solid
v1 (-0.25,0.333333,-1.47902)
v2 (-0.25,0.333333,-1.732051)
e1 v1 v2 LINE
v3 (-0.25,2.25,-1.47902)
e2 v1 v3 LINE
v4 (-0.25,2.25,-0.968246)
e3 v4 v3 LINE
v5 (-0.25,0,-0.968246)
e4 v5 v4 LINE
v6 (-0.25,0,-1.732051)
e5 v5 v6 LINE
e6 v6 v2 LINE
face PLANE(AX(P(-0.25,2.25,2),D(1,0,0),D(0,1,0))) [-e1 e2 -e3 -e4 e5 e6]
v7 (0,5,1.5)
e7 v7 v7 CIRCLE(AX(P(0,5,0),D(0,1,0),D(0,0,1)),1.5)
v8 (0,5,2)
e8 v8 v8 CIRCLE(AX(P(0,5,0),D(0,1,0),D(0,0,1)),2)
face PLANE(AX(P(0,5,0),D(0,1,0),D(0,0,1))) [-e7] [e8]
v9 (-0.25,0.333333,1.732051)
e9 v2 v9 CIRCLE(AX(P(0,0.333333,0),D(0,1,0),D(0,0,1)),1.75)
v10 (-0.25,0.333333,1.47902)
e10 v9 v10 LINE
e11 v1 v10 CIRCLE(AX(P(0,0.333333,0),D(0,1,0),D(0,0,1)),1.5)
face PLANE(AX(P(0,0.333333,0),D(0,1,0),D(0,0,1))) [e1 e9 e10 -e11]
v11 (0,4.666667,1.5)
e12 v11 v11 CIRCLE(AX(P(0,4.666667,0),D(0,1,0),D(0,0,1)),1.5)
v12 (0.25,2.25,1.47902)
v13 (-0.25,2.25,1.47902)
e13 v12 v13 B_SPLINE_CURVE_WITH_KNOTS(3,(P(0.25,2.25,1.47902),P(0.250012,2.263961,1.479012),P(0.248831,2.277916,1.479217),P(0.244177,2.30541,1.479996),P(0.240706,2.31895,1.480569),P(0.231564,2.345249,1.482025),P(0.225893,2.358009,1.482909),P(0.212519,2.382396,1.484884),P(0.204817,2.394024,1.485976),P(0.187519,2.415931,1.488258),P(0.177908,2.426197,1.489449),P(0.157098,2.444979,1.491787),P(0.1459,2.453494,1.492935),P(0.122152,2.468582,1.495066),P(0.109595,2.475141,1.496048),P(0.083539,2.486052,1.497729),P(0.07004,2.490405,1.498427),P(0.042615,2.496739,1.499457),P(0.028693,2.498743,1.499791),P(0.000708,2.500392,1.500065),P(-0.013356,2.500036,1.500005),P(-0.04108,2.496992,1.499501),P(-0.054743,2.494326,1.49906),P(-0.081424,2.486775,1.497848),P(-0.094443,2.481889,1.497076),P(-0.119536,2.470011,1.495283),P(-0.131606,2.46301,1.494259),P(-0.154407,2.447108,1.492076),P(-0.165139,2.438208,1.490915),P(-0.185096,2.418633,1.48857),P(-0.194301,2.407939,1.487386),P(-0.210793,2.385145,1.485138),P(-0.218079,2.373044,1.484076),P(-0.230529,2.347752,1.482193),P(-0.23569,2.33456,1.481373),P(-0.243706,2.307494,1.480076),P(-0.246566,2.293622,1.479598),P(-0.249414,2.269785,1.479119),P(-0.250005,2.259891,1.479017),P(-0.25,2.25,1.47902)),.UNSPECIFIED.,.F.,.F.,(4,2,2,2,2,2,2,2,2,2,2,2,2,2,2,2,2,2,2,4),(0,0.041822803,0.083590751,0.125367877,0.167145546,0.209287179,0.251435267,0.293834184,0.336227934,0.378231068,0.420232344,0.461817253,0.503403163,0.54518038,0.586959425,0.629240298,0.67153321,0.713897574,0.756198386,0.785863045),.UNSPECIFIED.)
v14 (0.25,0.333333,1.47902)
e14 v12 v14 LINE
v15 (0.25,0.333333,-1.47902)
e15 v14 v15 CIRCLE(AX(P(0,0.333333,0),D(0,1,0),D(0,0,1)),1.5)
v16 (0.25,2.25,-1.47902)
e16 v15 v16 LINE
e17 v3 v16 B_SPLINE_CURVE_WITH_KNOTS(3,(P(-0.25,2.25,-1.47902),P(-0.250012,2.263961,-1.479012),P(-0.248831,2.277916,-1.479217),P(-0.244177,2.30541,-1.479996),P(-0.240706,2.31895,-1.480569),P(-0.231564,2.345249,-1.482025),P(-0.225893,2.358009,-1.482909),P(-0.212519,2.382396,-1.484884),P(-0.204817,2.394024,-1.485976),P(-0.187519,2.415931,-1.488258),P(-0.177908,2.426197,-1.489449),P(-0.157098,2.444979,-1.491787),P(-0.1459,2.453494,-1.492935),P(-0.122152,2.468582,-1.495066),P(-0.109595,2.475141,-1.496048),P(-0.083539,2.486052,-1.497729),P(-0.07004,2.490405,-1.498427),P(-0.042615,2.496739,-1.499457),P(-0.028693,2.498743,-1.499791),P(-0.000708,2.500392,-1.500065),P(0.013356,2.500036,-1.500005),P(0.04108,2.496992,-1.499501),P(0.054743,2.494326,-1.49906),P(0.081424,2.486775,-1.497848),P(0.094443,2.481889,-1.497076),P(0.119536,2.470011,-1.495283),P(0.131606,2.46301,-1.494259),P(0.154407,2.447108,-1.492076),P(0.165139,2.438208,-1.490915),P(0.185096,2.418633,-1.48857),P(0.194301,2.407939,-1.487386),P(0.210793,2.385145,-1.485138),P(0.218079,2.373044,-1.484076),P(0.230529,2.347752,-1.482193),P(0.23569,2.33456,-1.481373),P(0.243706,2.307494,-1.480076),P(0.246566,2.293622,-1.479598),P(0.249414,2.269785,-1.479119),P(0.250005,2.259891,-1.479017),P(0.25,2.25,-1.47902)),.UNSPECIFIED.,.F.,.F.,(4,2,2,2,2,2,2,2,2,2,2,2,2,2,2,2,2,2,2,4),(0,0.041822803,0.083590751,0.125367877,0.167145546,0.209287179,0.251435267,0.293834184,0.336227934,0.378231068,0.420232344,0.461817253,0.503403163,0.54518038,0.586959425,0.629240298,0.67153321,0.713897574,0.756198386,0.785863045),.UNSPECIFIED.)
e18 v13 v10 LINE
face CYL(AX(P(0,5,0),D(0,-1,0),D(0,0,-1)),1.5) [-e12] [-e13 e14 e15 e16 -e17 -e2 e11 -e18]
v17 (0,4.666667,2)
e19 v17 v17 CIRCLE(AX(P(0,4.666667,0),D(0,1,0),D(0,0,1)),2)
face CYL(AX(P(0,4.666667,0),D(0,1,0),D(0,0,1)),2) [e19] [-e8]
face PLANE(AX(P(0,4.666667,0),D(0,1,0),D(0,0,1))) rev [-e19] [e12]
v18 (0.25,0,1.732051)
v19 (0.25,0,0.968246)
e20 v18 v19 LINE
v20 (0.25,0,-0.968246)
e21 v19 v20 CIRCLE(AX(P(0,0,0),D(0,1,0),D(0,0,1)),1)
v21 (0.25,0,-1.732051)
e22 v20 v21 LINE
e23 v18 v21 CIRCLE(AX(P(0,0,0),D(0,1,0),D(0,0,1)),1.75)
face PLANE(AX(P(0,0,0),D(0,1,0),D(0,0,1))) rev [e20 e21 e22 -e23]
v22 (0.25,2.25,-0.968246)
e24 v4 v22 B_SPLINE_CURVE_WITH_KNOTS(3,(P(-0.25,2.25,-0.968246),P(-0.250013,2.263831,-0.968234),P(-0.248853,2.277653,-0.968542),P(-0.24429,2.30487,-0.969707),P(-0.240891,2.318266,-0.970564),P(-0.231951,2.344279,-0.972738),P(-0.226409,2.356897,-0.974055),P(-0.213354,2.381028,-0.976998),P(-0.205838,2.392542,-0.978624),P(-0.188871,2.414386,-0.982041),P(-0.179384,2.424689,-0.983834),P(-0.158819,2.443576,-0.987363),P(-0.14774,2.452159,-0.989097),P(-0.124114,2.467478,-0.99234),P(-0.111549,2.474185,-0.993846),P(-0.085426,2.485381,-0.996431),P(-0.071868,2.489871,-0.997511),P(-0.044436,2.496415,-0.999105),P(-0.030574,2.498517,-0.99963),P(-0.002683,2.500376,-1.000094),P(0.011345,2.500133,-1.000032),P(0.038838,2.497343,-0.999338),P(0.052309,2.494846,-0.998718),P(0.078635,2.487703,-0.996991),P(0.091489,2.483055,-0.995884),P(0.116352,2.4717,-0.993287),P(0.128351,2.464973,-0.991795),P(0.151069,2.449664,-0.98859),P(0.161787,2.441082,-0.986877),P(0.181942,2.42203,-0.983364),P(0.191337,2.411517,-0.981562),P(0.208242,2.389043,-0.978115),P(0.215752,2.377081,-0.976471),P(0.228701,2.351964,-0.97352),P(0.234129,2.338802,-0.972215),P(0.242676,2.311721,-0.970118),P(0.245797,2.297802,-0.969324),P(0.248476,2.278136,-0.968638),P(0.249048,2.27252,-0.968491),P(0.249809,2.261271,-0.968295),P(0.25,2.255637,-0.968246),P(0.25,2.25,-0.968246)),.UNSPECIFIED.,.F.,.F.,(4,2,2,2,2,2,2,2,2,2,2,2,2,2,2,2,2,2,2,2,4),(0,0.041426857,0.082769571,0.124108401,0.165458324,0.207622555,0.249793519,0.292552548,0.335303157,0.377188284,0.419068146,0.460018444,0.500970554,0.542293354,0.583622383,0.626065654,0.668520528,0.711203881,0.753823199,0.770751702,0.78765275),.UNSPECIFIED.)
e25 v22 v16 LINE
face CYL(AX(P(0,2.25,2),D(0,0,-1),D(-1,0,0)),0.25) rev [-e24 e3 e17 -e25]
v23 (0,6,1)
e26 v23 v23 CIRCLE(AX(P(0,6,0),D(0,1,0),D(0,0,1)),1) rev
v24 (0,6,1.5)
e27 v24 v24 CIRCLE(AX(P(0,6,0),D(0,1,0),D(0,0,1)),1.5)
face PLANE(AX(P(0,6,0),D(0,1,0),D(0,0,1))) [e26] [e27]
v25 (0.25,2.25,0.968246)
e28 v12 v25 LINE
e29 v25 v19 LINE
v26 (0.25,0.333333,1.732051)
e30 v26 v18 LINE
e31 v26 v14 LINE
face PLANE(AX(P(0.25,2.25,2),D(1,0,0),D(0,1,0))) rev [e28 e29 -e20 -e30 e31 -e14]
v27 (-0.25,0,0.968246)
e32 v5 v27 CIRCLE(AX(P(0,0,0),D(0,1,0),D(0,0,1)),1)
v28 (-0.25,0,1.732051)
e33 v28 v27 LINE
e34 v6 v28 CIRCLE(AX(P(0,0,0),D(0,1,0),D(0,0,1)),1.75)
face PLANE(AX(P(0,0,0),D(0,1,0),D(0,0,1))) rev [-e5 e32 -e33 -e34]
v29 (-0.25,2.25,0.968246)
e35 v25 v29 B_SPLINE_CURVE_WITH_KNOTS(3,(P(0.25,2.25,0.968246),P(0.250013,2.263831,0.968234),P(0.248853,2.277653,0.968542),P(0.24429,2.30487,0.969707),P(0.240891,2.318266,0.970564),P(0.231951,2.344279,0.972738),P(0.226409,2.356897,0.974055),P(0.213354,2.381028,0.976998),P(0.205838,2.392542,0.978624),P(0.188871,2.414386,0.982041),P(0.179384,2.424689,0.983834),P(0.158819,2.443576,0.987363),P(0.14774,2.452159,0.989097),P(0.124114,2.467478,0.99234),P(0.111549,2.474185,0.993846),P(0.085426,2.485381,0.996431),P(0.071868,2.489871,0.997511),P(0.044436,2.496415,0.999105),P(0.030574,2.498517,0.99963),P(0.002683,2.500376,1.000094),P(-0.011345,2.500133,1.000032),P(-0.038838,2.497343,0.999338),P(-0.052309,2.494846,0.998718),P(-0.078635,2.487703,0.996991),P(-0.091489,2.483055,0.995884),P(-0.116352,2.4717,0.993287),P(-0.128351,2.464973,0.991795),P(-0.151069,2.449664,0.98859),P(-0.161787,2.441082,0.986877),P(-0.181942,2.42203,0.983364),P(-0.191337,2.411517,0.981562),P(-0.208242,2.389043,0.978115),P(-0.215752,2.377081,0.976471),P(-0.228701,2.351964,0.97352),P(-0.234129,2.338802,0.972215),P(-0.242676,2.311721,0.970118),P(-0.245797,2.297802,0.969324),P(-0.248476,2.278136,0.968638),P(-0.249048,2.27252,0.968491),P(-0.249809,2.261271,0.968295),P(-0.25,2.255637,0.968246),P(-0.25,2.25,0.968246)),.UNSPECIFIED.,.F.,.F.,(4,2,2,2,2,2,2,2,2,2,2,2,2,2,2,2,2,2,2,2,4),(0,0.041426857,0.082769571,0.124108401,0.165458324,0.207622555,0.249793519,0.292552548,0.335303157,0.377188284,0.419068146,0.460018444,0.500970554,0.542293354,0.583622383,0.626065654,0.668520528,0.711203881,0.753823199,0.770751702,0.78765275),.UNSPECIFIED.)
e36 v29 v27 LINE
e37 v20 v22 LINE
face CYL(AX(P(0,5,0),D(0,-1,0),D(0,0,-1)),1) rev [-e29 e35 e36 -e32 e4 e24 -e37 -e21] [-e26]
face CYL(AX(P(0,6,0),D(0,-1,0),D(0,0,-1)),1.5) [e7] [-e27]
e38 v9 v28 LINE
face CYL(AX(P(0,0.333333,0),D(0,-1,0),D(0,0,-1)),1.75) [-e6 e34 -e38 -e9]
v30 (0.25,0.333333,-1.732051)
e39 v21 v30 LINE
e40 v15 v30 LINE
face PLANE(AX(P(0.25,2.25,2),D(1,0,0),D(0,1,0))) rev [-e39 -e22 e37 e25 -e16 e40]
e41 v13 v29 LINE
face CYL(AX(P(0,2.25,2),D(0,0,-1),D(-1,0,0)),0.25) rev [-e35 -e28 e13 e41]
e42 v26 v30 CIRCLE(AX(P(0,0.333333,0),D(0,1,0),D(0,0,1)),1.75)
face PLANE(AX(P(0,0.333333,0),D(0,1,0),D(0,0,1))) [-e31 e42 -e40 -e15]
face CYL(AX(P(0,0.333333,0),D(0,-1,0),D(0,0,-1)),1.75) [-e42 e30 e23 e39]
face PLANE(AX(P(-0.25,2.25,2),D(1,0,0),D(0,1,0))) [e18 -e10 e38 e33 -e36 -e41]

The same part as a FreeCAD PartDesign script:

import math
import FreeCAD as App
import Part
import Sketcher
from FreeCAD import Vector

doc = App.newDocument("Part")
body = doc.addObject("PartDesign::Body", "Body")

sketch1 = body.newObject("Sketcher::SketchObject", "Sketch")
sketch1.AttachmentSupport = (doc.getObject("XZ_Plane"), [""])
sketch1.MapMode = "FlatFace"
sketch1.addGeometry([
    Part.Circle(Vector(0, 0, 0), Vector(0, 0, 1), 1.5),
    Part.Circle(Vector(0, 0, 0), Vector(0, 0, 1), 1),
], False)
sketch1.addConstraint([
    Sketcher.Constraint("Coincident", 0, 3, -1, 1),
    Sketcher.Constraint("Coincident", 1, 3, -1, 1),
    Sketcher.Constraint("Diameter", 0, 3.0),
    Sketcher.Constraint("Diameter", 1, 2.0),
])
pad1 = body.newObject("PartDesign::Pad", "Pad")
pad1.Profile = sketch1
pad1.Length = 5
pad1.Reversed = True

sketch2 = body.newObject("Sketcher::SketchObject", "Sketch001")
sketch2.AttachmentSupport = (doc.getObject("XZ_Plane"), [""])
sketch2.MapMode = "FlatFace"
sketch2.addGeometry([
    Part.Circle(Vector(0, 0, 0), Vector(0, 0, 1), 1.8),
    Part.Circle(Vector(0, 0, 0), Vector(0, 0, 1), 1.5),
], False)
sketch2.addConstraint([
    Sketcher.Constraint("Coincident", 0, 3, -1, 1),
    Sketcher.Constraint("Coincident", 1, 3, -1, 1),
    Sketcher.Constraint("Diameter", 1, 3.0),
    Sketcher.Constraint("Diameter", 0, 3.5),
])
pad2 = body.newObject("PartDesign::Pad", "Pad001")
pad2.Profile = sketch2
pad2.Length = 0.333333
pad2.Reversed = True

sketch3 = body.newObject("Sketcher::SketchObject", "Sketch002")
sketch3.AttachmentSupport = (doc.getObject("XZ_Plane"), [""])
sketch3.MapMode = "FlatFace"
sketch3.AttachmentOffset = App.Placement(Vector(0, 0, -5), App.Rotation())
sketch3.addGeometry([
    Part.Circle(Vector(0, 0, 0), Vector(0, 0, 1), 2),
    Part.Circle(Vector(0, 0, 0), Vector(0, 0, 1), 1.5),
], False)
sketch3.addConstraint([
    Sketcher.Constraint("Coincident", 0, 3, -1, 1),
    Sketcher.Constraint("Coincident", 1, 3, -1, 1),
    Sketcher.Constraint("Diameter", 0, 4.0),
    Sketcher.Constraint("Diameter", 1, 3.0),
])
pad3 = body.newObject("PartDesign::Pad", "Pad002")
pad3.Profile = sketch3
pad3.Length = 0.333333

sketch4 = body.newObject("Sketcher::SketchObject", "Sketch003")
sketch4.AttachmentSupport = (doc.getObject("XZ_Plane"), [""])
sketch4.MapMode = "FlatFace"
sketch4.AttachmentOffset = App.Placement(Vector(0, 0, -5), App.Rotation())
sketch4.addGeometry([
    Part.Circle(Vector(0, 0, 0), Vector(0, 0, 1), 1.5),
    Part.Circle(Vector(0, 0, 0), Vector(0, 0, 1), 1),
], False)
sketch4.addConstraint([
    Sketcher.Constraint("Coincident", 0, 3, -1, 1),
    Sketcher.Constraint("Coincident", 1, 3, -1, 1),
    Sketcher.Constraint("Diameter", 0, 3.0),
    Sketcher.Constraint("Diameter", 1, 2.0),
])
pad4 = body.newObject("PartDesign::Pad", "Pad003")
pad4.Profile = sketch4
pad4.Length = 1
pad4.Reversed = True

sketch5 = body.newObject("Sketcher::SketchObject", "Sketch004")
sketch5.AttachmentSupport = (doc.getObject("XY_Plane"), [""])
sketch5.MapMode = "FlatFace"
sketch5.addGeometry([
    Part.ArcOfCircle(Part.Circle(Vector(0, 2.25, 0), Vector(0, 0, 1), 0.25), math.radians(0), math.radians(180)),
    Part.LineSegment(Vector(-0.25, 2.25, 0), Vector(-0.25, 0, 0)),
    Part.LineSegment(Vector(-0.25, 0, 0), Vector(0.25, 0, 0)),
    Part.LineSegment(Vector(0.25, 0, 0), Vector(0.25, 2.25, 0)),
], False)
sketch5.addConstraint([
    Sketcher.Constraint("Tangent", 0, 2, 1, 1),
    Sketcher.Constraint("Coincident", 1, 2, 2, 1),
    Sketcher.Constraint("Coincident", 2, 2, 3, 1),
    Sketcher.Constraint("Tangent", 3, 2, 0, 1),
    Sketcher.Constraint("Vertical", 1),
    Sketcher.Constraint("Horizontal", 2),
    Sketcher.Constraint("Vertical", 3),
    Sketcher.Constraint("Symmetric", 1, 2, 2, 2, -1, 1),
    Sketcher.Constraint("Radius", 0, 0.25),
    Sketcher.Constraint("DistanceY", 1, 2, 1, 1, 2.25),
])
pocket1 = body.newObject("PartDesign::Pocket", "Pocket")
pocket1.Profile = sketch5
pocket1.Type = "ThroughAll"
pocket1.Midplane = True

doc.recompute()
